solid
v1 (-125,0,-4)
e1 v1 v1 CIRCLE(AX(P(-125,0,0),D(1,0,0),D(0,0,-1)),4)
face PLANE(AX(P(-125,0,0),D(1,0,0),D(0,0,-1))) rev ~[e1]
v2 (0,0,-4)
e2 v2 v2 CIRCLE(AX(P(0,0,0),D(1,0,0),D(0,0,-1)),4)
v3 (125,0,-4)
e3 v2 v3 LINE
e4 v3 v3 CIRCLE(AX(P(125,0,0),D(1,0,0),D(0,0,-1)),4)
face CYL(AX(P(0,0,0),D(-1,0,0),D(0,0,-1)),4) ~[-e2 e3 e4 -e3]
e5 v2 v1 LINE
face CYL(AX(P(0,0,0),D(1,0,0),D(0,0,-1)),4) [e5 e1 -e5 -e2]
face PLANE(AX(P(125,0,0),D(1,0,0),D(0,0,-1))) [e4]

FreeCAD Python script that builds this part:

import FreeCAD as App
import Part
import Sketcher
from FreeCAD import Vector

doc = App.newDocument("Part")
body = doc.addObject("PartDesign::Body", "Body")

sketch1 = doc.addObject("Sketcher::SketchObject", "Sketch")
body.addObject(sketch1)
sketch1.AttachmentSupport = (doc.YZ_Plane, [""])
sketch1.MapMode = "FlatFace"
sketch1.addGeometry(Part.Circle(Vector(0, 0, 0), Vector(0, 0, 1), 4), False)
sketch1.addConstraint(Sketcher.Constraint("Coincident", 0, 3, -1, 1))
sketch1.addConstraint(Sketcher.Constraint("Diameter", 0, 8.0))
pad1 = doc.addObject("PartDesign::Pad", "Pad")
body.addObject(pad1)
pad1.Profile = sketch1
pad1.Type = "TwoLengths"
pad1.Length = 125
pad1.Length2 = 125

doc.recompute()
